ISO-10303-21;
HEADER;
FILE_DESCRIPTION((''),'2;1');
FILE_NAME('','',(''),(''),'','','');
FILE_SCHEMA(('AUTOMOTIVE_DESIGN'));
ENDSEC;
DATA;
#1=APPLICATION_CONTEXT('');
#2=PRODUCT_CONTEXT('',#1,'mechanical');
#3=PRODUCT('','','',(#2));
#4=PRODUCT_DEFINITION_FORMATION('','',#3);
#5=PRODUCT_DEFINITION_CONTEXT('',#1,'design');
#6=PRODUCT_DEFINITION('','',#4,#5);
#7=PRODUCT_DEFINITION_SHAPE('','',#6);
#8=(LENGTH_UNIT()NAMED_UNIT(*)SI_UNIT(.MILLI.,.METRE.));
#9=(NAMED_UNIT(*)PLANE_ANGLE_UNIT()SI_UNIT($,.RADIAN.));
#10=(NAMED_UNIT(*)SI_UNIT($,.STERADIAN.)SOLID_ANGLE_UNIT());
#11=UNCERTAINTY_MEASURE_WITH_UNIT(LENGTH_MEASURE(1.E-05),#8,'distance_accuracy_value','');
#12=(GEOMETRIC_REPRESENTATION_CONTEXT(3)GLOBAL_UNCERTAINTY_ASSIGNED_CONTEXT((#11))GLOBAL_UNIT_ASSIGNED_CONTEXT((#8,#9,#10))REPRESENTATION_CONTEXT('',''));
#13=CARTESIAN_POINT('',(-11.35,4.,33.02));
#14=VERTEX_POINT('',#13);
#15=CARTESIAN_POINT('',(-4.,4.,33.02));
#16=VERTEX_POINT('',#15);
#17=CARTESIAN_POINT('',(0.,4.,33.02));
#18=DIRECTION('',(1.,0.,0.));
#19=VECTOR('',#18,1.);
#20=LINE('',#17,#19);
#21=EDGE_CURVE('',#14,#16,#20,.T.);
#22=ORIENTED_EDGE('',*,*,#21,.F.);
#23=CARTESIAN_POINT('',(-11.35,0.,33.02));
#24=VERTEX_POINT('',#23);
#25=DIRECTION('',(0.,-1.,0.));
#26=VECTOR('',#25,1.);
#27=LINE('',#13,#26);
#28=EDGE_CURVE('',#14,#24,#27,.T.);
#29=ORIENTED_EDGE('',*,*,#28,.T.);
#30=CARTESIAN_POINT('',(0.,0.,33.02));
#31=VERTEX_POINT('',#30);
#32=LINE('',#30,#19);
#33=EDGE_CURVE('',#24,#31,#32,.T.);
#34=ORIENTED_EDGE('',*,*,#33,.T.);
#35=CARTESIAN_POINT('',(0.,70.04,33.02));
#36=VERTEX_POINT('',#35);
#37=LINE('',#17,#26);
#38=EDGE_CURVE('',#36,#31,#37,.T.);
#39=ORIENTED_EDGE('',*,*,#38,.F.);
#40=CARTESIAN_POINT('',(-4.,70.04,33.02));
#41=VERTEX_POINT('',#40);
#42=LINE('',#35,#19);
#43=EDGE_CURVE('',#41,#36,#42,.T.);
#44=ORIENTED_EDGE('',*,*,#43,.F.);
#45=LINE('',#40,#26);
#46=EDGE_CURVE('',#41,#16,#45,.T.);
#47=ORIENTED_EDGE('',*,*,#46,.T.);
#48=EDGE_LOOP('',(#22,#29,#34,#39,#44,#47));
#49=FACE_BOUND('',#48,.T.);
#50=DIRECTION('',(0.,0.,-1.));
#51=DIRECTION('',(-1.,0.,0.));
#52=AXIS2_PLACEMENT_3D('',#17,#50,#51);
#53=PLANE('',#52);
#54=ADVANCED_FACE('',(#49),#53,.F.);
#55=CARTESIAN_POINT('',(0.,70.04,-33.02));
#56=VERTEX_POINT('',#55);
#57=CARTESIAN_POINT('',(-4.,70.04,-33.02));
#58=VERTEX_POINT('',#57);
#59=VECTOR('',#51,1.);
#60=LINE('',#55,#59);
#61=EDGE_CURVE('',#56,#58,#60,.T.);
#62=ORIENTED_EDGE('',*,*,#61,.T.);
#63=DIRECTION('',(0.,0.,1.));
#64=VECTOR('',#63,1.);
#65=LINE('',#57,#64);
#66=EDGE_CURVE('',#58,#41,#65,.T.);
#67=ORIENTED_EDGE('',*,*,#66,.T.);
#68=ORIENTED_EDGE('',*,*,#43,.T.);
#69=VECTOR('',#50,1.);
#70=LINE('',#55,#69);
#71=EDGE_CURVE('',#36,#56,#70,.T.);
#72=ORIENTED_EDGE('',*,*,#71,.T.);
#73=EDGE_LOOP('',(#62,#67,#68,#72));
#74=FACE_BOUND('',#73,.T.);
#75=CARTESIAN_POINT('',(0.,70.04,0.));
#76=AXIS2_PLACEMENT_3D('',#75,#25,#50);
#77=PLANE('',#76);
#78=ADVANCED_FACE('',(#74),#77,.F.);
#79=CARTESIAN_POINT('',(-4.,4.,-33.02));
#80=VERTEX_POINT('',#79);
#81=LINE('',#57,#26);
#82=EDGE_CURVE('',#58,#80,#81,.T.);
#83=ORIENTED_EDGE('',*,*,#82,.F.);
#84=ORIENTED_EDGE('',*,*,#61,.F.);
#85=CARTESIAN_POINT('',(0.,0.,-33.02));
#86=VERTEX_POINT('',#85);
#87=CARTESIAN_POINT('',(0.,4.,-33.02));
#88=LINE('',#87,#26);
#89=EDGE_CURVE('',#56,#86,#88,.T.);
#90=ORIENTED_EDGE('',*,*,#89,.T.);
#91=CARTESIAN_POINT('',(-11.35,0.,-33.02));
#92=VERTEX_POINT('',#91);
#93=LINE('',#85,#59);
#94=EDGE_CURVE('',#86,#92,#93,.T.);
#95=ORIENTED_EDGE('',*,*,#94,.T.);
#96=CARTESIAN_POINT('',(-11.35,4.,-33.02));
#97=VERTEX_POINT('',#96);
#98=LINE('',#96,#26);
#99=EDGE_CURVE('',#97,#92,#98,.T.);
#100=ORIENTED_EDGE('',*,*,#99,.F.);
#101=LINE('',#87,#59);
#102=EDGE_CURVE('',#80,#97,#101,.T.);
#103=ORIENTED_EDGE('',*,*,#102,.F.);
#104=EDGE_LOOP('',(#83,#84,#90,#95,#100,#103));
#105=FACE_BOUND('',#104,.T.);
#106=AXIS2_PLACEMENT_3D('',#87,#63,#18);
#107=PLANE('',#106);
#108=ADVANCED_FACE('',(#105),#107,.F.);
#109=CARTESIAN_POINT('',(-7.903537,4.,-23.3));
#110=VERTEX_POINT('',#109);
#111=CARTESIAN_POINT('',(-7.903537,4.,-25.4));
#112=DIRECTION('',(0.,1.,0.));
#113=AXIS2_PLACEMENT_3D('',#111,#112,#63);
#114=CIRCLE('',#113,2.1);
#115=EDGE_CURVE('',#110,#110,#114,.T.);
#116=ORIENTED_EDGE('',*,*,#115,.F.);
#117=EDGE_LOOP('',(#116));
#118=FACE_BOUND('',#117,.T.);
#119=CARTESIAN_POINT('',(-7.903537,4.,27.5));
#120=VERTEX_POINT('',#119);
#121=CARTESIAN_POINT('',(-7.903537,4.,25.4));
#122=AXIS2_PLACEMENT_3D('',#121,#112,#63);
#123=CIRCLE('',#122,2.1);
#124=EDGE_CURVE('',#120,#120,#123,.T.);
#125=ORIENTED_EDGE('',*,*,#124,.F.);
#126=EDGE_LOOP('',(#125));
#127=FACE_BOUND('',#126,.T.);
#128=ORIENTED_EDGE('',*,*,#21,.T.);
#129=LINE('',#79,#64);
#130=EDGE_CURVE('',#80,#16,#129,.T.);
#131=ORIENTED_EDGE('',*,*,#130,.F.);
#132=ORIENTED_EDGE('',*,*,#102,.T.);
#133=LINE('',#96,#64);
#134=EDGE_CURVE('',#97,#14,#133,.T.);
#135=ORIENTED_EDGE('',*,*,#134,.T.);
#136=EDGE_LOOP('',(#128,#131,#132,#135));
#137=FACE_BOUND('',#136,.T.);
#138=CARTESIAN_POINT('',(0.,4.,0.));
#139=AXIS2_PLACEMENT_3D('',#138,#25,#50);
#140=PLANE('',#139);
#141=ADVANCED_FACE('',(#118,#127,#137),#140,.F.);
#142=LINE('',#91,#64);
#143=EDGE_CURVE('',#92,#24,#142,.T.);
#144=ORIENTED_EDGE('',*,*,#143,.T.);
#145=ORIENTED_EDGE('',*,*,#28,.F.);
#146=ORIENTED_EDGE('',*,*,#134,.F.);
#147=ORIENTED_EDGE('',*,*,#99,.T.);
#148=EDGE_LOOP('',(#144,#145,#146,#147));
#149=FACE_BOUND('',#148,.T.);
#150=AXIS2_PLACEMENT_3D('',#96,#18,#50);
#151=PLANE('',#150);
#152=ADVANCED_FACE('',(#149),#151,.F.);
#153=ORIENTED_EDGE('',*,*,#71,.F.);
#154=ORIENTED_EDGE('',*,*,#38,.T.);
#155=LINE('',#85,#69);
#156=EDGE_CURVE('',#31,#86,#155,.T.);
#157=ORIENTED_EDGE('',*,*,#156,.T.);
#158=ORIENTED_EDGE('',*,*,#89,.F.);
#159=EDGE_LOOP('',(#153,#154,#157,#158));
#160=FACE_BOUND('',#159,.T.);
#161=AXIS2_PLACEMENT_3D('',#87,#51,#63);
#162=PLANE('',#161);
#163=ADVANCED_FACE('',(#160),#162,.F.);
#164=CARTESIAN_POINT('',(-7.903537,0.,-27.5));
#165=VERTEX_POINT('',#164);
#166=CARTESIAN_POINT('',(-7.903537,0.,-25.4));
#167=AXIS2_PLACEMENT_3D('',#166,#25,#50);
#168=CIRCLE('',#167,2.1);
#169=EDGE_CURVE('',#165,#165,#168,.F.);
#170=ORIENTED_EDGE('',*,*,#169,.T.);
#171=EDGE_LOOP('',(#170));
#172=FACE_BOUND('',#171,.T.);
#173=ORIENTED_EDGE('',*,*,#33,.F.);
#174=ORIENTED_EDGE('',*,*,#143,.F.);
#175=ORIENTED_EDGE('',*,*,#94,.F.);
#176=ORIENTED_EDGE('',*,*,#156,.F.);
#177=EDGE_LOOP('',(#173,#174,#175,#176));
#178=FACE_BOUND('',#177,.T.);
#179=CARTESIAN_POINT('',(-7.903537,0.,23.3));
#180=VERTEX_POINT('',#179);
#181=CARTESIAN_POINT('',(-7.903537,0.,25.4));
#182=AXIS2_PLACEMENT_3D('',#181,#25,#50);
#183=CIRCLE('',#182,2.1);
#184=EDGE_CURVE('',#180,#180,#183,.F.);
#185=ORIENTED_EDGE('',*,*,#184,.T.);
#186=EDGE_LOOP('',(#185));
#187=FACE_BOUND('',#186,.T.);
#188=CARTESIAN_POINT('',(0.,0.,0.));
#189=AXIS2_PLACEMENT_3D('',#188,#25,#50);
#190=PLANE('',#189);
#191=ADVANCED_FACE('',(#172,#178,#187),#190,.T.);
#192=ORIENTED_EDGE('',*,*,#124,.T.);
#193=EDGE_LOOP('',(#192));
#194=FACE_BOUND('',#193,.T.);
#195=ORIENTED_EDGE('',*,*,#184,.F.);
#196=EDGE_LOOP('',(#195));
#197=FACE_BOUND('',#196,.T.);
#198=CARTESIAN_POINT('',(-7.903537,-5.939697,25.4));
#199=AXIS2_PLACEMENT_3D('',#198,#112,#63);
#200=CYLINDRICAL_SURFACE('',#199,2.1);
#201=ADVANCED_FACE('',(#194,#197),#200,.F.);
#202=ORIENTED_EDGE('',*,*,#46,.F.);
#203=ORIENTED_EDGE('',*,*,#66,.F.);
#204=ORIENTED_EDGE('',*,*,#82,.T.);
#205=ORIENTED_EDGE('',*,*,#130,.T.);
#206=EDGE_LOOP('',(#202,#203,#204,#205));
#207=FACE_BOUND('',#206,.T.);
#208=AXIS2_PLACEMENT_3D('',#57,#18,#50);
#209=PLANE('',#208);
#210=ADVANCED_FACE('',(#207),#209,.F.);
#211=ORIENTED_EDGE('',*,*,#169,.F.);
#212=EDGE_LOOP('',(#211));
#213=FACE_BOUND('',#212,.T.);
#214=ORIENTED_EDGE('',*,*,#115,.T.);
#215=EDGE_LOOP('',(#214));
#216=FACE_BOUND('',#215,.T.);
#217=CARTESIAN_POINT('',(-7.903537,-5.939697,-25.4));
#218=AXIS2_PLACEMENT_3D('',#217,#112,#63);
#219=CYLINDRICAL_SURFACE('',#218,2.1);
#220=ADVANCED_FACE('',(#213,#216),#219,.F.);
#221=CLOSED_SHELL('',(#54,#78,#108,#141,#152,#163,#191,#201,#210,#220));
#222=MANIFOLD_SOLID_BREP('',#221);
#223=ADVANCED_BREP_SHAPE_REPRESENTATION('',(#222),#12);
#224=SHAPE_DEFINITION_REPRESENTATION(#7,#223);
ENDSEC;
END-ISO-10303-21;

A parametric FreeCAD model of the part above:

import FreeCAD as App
import Part
import Sketcher
from FreeCAD import Vector
Q = App.Units.Quantity

doc = App.newDocument("Part")
body = doc.addObject("PartDesign::Body", "Body")

sketch1 = body.newObject("Sketcher::SketchObject", "Sketch")
sketch1.AttachmentSupport = (doc.getObject("XZ_Plane"), [""])
sketch1.MapMode = "FlatFace"
sketch1.addGeometry(Part.LineSegment(Vector(-11.35, -33.02, 0), Vector(-11.35, 33.02, 0)), False)
sketch1.addGeometry(Part.LineSegment(Vector(-11.35, 33.02, 0), Vector(0, 33.02, 0)), False)
sketch1.addGeometry(Part.LineSegment(Vector(0, 33.02, 0), Vector(0, -33.02, 0)), False)
sketch1.addGeometry(Part.LineSegment(Vector(0, -33.02, 0), Vector(-11.35, -33.02, 0)), False)
sketch1.addConstraint(Sketcher.Constraint("Coincident", 0, 2, 1, 1))
sketch1.addConstraint(Sketcher.Constraint("Coincident", 1, 2, 2, 1))
sketch1.addConstraint(Sketcher.Constraint("Coincident", 2, 2, 3, 1))
sketch1.addConstraint(Sketcher.Constraint("Coincident", 3, 2, 0, 1))
sketch1.addConstraint(Sketcher.Constraint("Vertical", 0))
sketch1.addConstraint(Sketcher.Constraint("Horizontal", 1))
sketch1.addConstraint(Sketcher.Constraint("Vertical", 2))
sketch1.addConstraint(Sketcher.Constraint("Horizontal", 3))
sketch1.addConstraint(Sketcher.Constraint("Symmetric", 1, 2, 2, 2, -1, 1))
sketch1.addConstraint(Sketcher.Constraint("DistanceX", 1, 1, 1, 2, Q("11.35 mm")))
sketch1.addConstraint(Sketcher.Constraint("DistanceY", 0, 1, 0, 2, Q("66.04 mm")))
pad1 = body.newObject("PartDesign::Pad", "Pad")
pad1.Profile = sketch1
pad1.Length = 4
pad1.Reversed = True

sketch2 = body.newObject("Sketcher::SketchObject", "Sketch001")
sketch2.AttachmentSupport = (doc.getObject("XZ_Plane"), [""])
sketch2.MapMode = "FlatFace"
sketch2.AttachmentOffset = App.Placement(Vector(0, 0, -4), App.Rotation())
sketch2.addGeometry(Part.LineSegment(Vector(-4, -33.02, 0), Vector(-4, 33.02, 0)), False)
sketch2.addGeometry(Part.LineSegment(Vector(-4, 33.02, 0), Vector(0, 33.02, 0)), False)
sketch2.addGeometry(Part.LineSegment(Vector(0, 33.02, 0), Vector(0, -33.02, 0)), False)
sketch2.addGeometry(Part.LineSegment(Vector(0, -33.02, 0), Vector(-4, -33.02, 0)), False)
sketch2.addConstraint(Sketcher.Constraint("Coincident", 0, 2, 1, 1))
sketch2.addConstraint(Sketcher.Constraint("Coincident", 1, 2, 2, 1))
sketch2.addConstraint(Sketcher.Constraint("Coincident", 2, 2, 3, 1))
sketch2.addConstraint(Sketcher.Constraint("Coincident", 3, 2, 0, 1))
sketch2.addConstraint(Sketcher.Constraint("Vertical", 0))
sketch2.addConstraint(Sketcher.Constraint("Horizontal", 1))
sketch2.addConstraint(Sketcher.Constraint("Vertical", 2))
sketch2.addConstraint(Sketcher.Constraint("Horizontal", 3))
sketch2.addConstraint(Sketcher.Constraint("Symmetric", 1, 2, 2, 2, -1, 1))
sketch2.addConstraint(Sketcher.Constraint("DistanceX", 1, 1, 1, 2, Q("4 mm")))
sketch2.addConstraint(Sketcher.Constraint("DistanceY", 0, 1, 0, 2, Q("66.04 mm")))
pad2 = body.newObject("PartDesign::Pad", "Pad001")
pad2.Profile = sketch2
pad2.Length = 66.04
pad2.Reversed = True

sketch3 = body.newObject("Sketcher::SketchObject", "Sketch002")
sketch3.AttachmentSupport = (doc.getObject("XZ_Plane"), [""])
sketch3.MapMode = "FlatFace"
sketch3.AttachmentOffset = App.Placement(Vector(0, 0, -4), App.Rotation())
sketch3.addGeometry(Part.Circle(Vector(-7.903537, -25.4, 0), Vector(0, 0, 1), 2.1), False)
sketch3.addGeometry(Part.Circle(Vector(-7.903537, 25.4, 0), Vector(0, 0, 1), 2.1), False)
sketch3.addConstraint(Sketcher.Constraint("Equal", 0, 1))
sketch3.addConstraint(Sketcher.Constraint("Symmetric", 0, 3, 1, 3, -1))
sketch3.addConstraint(Sketcher.Constraint("Diameter", 0, Q("4.2 mm")))
sketch3.addConstraint(Sketcher.Constraint("DistanceY", 0, 3, -1, 1, Q("25.4 mm")))
sketch3.addConstraint(Sketcher.Constraint("DistanceX", 0, 3, -1, 1, Q("7.903537 mm")))
pocket1 = body.newObject("PartDesign::Pocket", "Pocket")
pocket1.Profile = sketch3
pocket1.Length = 4
pocket1.Reversed = True

doc.recompute()
